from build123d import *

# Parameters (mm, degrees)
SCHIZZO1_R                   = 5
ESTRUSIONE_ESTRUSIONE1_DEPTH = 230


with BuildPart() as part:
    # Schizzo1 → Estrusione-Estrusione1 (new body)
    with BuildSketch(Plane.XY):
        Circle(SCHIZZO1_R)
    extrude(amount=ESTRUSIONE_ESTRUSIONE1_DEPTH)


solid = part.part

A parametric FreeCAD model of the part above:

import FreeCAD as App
import Part
import Sketcher
from FreeCAD import Vector
Q = App.Units.Quantity

doc = App.newDocument("Part")
body = doc.addObject("PartDesign::Body", "Body")

# Sketch on XY plane
sketch1 = doc.addObject("Sketcher::SketchObject", "Sketch")
body.addObject(sketch1)
sketch1.AttachmentSupport = (doc.XY_Plane, [""])
sketch1.MapMode = "FlatFace"
sketch1.addGeometry(Part.Circle(Vector(0, 0, 0), Vector(0, 0, 1), 5), False)
sketch1.addConstraint([
    Sketcher.Constraint("Coincident", 0, 3, -1, 1),
    Sketcher.Constraint("Diameter", 0, Q("10 mm")),
])
pad1 = doc.addObject("PartDesign::Pad", "Pad")
body.addObject(pad1)
pad1.Profile = sketch1
pad1.Length = 230

doc.recompute()
